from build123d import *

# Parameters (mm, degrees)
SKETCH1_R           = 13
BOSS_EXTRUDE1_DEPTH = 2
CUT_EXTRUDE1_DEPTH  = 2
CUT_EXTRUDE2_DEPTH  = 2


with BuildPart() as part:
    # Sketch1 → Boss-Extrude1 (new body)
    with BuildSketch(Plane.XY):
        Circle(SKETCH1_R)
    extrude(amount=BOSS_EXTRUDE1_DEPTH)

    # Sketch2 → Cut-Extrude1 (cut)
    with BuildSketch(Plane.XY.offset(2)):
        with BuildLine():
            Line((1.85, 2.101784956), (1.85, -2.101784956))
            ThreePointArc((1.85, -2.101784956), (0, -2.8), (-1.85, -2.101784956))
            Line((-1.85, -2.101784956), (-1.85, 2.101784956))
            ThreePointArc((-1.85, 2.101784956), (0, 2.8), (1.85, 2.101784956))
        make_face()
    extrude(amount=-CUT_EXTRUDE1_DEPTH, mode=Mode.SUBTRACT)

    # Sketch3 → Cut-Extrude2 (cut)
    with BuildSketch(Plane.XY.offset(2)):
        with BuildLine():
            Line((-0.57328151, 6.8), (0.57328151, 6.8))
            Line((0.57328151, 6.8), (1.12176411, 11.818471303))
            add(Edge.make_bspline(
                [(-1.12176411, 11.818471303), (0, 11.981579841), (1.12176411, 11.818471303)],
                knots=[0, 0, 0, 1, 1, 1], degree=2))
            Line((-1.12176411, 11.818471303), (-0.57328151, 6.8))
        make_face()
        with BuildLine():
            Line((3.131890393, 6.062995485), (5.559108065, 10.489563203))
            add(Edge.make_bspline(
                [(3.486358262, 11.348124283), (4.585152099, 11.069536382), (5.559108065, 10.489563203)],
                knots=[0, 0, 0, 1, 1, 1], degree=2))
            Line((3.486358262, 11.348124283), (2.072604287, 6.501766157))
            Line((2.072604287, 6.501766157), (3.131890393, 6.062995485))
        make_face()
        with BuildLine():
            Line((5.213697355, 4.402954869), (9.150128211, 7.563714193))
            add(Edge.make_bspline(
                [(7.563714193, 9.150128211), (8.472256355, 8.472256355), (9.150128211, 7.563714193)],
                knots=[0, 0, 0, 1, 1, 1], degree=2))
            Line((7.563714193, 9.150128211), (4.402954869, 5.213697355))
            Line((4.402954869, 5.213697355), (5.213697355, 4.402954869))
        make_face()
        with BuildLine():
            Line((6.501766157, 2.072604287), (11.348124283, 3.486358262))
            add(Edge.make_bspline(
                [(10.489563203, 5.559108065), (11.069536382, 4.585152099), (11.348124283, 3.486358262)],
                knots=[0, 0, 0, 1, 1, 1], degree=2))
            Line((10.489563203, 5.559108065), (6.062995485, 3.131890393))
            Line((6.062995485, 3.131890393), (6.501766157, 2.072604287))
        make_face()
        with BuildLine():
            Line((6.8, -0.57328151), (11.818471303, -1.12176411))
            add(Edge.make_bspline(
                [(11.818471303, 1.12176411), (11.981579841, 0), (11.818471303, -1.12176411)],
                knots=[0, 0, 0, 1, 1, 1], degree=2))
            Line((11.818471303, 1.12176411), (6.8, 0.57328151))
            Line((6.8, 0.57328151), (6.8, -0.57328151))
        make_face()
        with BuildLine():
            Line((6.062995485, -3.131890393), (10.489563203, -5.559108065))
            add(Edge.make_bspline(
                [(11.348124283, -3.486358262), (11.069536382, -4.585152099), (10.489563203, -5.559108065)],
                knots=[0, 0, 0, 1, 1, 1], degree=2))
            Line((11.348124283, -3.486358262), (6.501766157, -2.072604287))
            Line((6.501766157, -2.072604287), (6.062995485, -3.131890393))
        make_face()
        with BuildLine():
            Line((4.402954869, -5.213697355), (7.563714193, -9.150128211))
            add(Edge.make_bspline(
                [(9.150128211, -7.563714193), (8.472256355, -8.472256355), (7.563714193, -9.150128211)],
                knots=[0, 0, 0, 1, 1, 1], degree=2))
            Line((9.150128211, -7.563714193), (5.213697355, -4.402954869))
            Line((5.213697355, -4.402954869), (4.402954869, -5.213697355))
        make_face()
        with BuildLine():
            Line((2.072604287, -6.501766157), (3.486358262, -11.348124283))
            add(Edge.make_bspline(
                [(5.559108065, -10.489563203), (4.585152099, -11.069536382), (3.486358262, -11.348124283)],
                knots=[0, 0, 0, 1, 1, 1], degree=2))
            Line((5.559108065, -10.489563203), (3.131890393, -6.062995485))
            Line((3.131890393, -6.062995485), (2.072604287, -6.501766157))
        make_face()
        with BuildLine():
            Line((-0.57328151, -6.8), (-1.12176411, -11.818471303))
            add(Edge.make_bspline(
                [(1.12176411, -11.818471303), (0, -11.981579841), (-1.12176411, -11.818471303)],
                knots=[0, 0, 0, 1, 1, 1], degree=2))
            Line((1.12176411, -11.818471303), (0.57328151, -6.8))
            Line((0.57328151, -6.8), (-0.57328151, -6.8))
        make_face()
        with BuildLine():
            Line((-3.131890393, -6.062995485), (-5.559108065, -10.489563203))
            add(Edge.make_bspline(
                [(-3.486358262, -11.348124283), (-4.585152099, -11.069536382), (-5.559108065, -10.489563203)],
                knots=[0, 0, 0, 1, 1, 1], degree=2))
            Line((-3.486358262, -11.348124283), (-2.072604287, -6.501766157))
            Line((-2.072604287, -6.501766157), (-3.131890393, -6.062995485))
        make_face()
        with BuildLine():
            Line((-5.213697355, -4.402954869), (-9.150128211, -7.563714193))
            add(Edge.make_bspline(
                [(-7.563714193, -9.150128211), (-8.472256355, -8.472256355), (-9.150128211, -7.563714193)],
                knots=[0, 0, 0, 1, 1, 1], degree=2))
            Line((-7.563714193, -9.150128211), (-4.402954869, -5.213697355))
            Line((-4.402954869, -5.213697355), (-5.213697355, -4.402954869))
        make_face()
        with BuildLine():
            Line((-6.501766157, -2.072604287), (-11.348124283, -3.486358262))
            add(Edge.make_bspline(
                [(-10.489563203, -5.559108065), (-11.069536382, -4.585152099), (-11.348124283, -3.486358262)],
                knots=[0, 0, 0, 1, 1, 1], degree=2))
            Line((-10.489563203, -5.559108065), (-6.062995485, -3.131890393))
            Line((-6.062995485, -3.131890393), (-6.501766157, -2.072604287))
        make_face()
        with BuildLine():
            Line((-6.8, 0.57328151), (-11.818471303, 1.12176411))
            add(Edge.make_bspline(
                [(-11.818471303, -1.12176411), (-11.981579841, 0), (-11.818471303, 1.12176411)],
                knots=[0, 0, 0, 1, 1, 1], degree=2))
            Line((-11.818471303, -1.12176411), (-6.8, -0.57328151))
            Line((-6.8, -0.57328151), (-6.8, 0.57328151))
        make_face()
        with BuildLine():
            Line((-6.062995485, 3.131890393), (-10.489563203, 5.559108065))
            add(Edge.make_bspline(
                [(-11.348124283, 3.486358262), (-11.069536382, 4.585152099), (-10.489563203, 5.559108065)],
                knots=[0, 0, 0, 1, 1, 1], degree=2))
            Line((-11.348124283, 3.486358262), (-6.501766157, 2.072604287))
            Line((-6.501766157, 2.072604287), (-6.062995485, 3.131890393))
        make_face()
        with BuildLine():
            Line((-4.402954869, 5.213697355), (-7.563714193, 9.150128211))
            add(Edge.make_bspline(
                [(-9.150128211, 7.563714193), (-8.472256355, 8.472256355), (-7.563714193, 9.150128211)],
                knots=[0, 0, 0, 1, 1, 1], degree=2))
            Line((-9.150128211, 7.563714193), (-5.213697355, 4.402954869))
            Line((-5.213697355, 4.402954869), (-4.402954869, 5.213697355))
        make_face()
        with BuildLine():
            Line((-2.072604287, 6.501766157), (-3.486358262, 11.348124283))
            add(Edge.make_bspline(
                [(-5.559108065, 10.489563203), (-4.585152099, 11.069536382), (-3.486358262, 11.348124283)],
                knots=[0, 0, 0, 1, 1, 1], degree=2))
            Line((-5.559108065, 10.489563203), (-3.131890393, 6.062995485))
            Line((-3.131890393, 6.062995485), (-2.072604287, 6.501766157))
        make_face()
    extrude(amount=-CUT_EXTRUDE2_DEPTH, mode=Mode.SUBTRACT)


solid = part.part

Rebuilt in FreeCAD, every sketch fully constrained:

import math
import FreeCAD as App
import Part
import Sketcher

doc = App.newDocument("Part")
body = doc.addObject("PartDesign::Body", "Body")

# Sketch on XY plane
sketch1 = body.newObject("Sketcher::SketchObject", "Sketch")
sketch1.AttachmentSupport = (doc.getObject("XY_Plane"), [""])
sketch1.MapMode = "FlatFace"
sketch1.addGeometry(Part.Circle(App.Vector(0, 0, 0), App.Vector(0, 0, 1), 13), False)
sketch1.addConstraint([
    Sketcher.Constraint("Coincident", 0, 3, -1, 1),
    Sketcher.Constraint("Diameter", 0, 26.0),
])
pad1 = body.newObject("PartDesign::Pad", "Pad")
pad1.Profile = sketch1
pad1.Length = 2

# Sketch on XY plane
sketch2 = body.newObject("Sketcher::SketchObject", "Sketch001")
sketch2.AttachmentSupport = (doc.getObject("XY_Plane"), [""])
sketch2.MapMode = "FlatFace"
sketch2.AttachmentOffset = App.Placement(App.Vector(0, 0, 2), App.Rotation())
sketch2.addGeometry([
    Part.LineSegment(App.Vector(1.85, -2.101785, 0), App.Vector(1.85, 2.101785, 0)),
    Part.ArcOfCircle(Part.Circle(App.Vector(0, 0, 0), App.Vector(0, 0, 1), 2.8), math.radians(48.645629), math.radians(131.354371)),
    Part.LineSegment(App.Vector(-1.85, 2.101785, 0), App.Vector(-1.85, -2.101785, 0)),
    Part.ArcOfCircle(Part.Circle(App.Vector(0, 0, 0), App.Vector(0, 0, 1), 2.8), math.radians(-131.354371), math.radians(-48.645629)),
], False)
sketch2.addConstraint([
    Sketcher.Constraint("Coincident", 0, 2, 1, 1),
    Sketcher.Constraint("Coincident", 1, 2, 2, 1),
    Sketcher.Constraint("Coincident", 2, 2, 3, 1),
    Sketcher.Constraint("Coincident", 3, 2, 0, 1),
    Sketcher.Constraint("Vertical", 0),
    Sketcher.Constraint("Vertical", 2),
    Sketcher.Constraint("Coincident", 1, 3, -1, 1),
    Sketcher.Constraint("Coincident", 3, 3, -1, 1),
    Sketcher.Constraint("Equal", 1, 3),
    Sketcher.Constraint("Horizontal", 0, 2, 1, 2),
    Sketcher.Constraint("Radius", 1, 2.8),
    Sketcher.Constraint("DistanceX", 1, 2, 0, 2, 3.7),
])
pocket1 = body.newObject("PartDesign::Pocket", "Pocket")
pocket1.Profile = sketch2
pocket1.Length = 2

# Sketch on XY plane
sketch3 = body.newObject("Sketcher::SketchObject", "Sketch002")
sketch3.AttachmentSupport = (doc.getObject("XY_Plane"), [""])
sketch3.MapMode = "FlatFace"
sketch3.AttachmentOffset = App.Placement(App.Vector(0, 0, 2), App.Rotation())
sketch3.addGeometry([
    Part.LineSegment(App.Vector(-0.573282, 6.8, 0), App.Vector(0.573282, 6.8, 0)),  # 0
    Part.LineSegment(App.Vector(0.573282, 6.8, 0), App.Vector(1.121764, 11.818471, 0)),  # 1
    Part.BSplineCurve([App.Vector(-1.121764, 11.818471, 0), App.Vector(0, 11.98158, 0), App.Vector(1.121764, 11.818471, 0)], [3, 3], [0, 1], False, 2, [1, 1, 1], False),  # 2
    Part.LineSegment(App.Vector(-1.121764, 11.818471, 0), App.Vector(-0.573282, 6.8, 0)),  # 3
    Part.LineSegment(App.Vector(3.13189, 6.062995, 0), App.Vector(5.559108, 10.489563, 0)),  # 4
    Part.BSplineCurve([App.Vector(3.486358, 11.348124, 0), App.Vector(4.585152, 11.069536, 0), App.Vector(5.559108, 10.489563, 0)], [3, 3], [0, 1], False, 2, [1, 1, 1], False),  # 5
    Part.LineSegment(App.Vector(3.486358, 11.348124, 0), App.Vector(2.072604, 6.501766, 0)),  # 6
    Part.LineSegment(App.Vector(2.072604, 6.501766, 0), App.Vector(3.13189, 6.062995, 0)),  # 7
    Part.LineSegment(App.Vector(5.213697, 4.402955, 0), App.Vector(9.150128, 7.563714, 0)),  # 8
    Part.BSplineCurve([App.Vector(7.563714, 9.150128, 0), App.Vector(8.472256, 8.472256, 0), App.Vector(9.150128, 7.563714, 0)], [3, 3], [0, 1], False, 2, [1, 1, 1], False),  # 9
    Part.LineSegment(App.Vector(7.563714, 9.150128, 0), App.Vector(4.402955, 5.213697, 0)),  # 10
    Part.LineSegment(App.Vector(4.402955, 5.213697, 0), App.Vector(5.213697, 4.402955, 0)),  # 11
    Part.LineSegment(App.Vector(6.501766, 2.072604, 0), App.Vector(11.348124, 3.486358, 0)),  # 12
    Part.BSplineCurve([App.Vector(10.489563, 5.559108, 0), App.Vector(11.069536, 4.585152, 0), App.Vector(11.348124, 3.486358, 0)], [3, 3], [0, 1], False, 2, [1, 1, 1], False),  # 13
    Part.LineSegment(App.Vector(10.489563, 5.559108, 0), App.Vector(6.062995, 3.13189, 0)),  # 14
    Part.LineSegment(App.Vector(6.062995, 3.13189, 0), App.Vector(6.501766, 2.072604, 0)),  # 15
    Part.LineSegment(App.Vector(6.8, -0.573282, 0), App.Vector(11.818471, -1.121764, 0)),  # 16
    Part.BSplineCurve([App.Vector(11.818471, 1.121764, 0), App.Vector(11.98158, 0, 0), App.Vector(11.818471, -1.121764, 0)], [3, 3], [0, 1], False, 2, [1, 1, 1], False),  # 17
    Part.LineSegment(App.Vector(11.818471, 1.121764, 0), App.Vector(6.8, 0.573282, 0)),  # 18
    Part.LineSegment(App.Vector(6.8, 0.573282, 0), App.Vector(6.8, -0.573282, 0)),  # 19
    Part.LineSegment(App.Vector(6.062995, -3.13189, 0), App.Vector(10.489563, -5.559108, 0)),  # 20
    Part.BSplineCurve([App.Vector(11.348124, -3.486358, 0), App.Vector(11.069536, -4.585152, 0), App.Vector(10.489563, -5.559108, 0)], [3, 3], [0, 1], False, 2, [1, 1, 1], False),  # 21
    Part.LineSegment(App.Vector(11.348124, -3.486358, 0), App.Vector(6.501766, -2.072604, 0)),  # 22
    Part.LineSegment(App.Vector(6.501766, -2.072604, 0), App.Vector(6.062995, -3.13189, 0)),  # 23
    Part.LineSegment(App.Vector(4.402955, -5.213697, 0), App.Vector(7.563714, -9.150128, 0)),  # 24
    Part.BSplineCurve([App.Vector(9.150128, -7.563714, 0), App.Vector(8.472256, -8.472256, 0), App.Vector(7.563714, -9.150128, 0)], [3, 3], [0, 1], False, 2, [1, 1, 1], False),  # 25
    Part.LineSegment(App.Vector(9.150128, -7.563714, 0), App.Vector(5.213697, -4.402955, 0)),  # 26
    Part.LineSegment(App.Vector(5.213697, -4.402955, 0), App.Vector(4.402955, -5.213697, 0)),  # 27
    Part.LineSegment(App.Vector(2.072604, -6.501766, 0), App.Vector(3.486358, -11.348124, 0)),  # 28
    Part.BSplineCurve([App.Vector(5.559108, -10.489563, 0), App.Vector(4.585152, -11.069536, 0), App.Vector(3.486358, -11.348124, 0)], [3, 3], [0, 1], False, 2, [1, 1, 1], False),  # 29
    Part.LineSegment(App.Vector(5.559108, -10.489563, 0), App.Vector(3.13189, -6.062995, 0)),  # 30
    Part.LineSegment(App.Vector(3.13189, -6.062995, 0), App.Vector(2.072604, -6.501766, 0)),  # 31
    Part.LineSegment(App.Vector(-0.573282, -6.8, 0), App.Vector(-1.121764, -11.818471, 0)),  # 32
    Part.BSplineCurve([App.Vector(1.121764, -11.818471, 0), App.Vector(0, -11.98158, 0), App.Vector(-1.121764, -11.818471, 0)], [3, 3], [0, 1], False, 2, [1, 1, 1], False),  # 33
    Part.LineSegment(App.Vector(1.121764, -11.818471, 0), App.Vector(0.573282, -6.8, 0)),  # 34
    Part.LineSegment(App.Vector(0.573282, -6.8, 0), App.Vector(-0.573282, -6.8, 0)),  # 35
    Part.LineSegment(App.Vector(-3.13189, -6.062995, 0), App.Vector(-5.559108, -10.489563, 0)),  # 36
    Part.BSplineCurve([App.Vector(-3.486358, -11.348124, 0), App.Vector(-4.585152, -11.069536, 0), App.Vector(-5.559108, -10.489563, 0)], [3, 3], [0, 1], False, 2, [1, 1, 1], False),  # 37
    Part.LineSegment(App.Vector(-3.486358, -11.348124, 0), App.Vector(-2.072604, -6.501766, 0)),  # 38
    Part.LineSegment(App.Vector(-2.072604, -6.501766, 0), App.Vector(-3.13189, -6.062995, 0)),  # 39
    Part.LineSegment(App.Vector(-5.213697, -4.402955, 0), App.Vector(-9.150128, -7.563714, 0)),  # 40
    Part.BSplineCurve([App.Vector(-7.563714, -9.150128, 0), App.Vector(-8.472256, -8.472256, 0), App.Vector(-9.150128, -7.563714, 0)], [3, 3], [0, 1], False, 2, [1, 1, 1], False),  # 41
    Part.LineSegment(App.Vector(-7.563714, -9.150128, 0), App.Vector(-4.402955, -5.213697, 0)),  # 42
    Part.LineSegment(App.Vector(-4.402955, -5.213697, 0), App.Vector(-5.213697, -4.402955, 0)),  # 43
    Part.LineSegment(App.Vector(-6.501766, -2.072604, 0), App.Vector(-11.348124, -3.486358, 0)),  # 44
    Part.BSplineCurve([App.Vector(-10.489563, -5.559108, 0), App.Vector(-11.069536, -4.585152, 0), App.Vector(-11.348124, -3.486358, 0)], [3, 3], [0, 1], False, 2, [1, 1, 1], False),  # 45
    Part.LineSegment(App.Vector(-10.489563, -5.559108, 0), App.Vector(-6.062995, -3.13189, 0)),  # 46
    Part.LineSegment(App.Vector(-6.062995, -3.13189, 0), App.Vector(-6.501766, -2.072604, 0)),  # 47
    Part.LineSegment(App.Vector(-6.8, 0.573282, 0), App.Vector(-11.818471, 1.121764, 0)),  # 48
    Part.BSplineCurve([App.Vector(-11.818471, -1.121764, 0), App.Vector(-11.98158, 0, 0), App.Vector(-11.818471, 1.121764, 0)], [3, 3], [0, 1], False, 2, [1, 1, 1], False),  # 49
    Part.LineSegment(App.Vector(-11.818471, -1.121764, 0), App.Vector(-6.8, -0.573282, 0)),  # 50
    Part.LineSegment(App.Vector(-6.8, -0.573282, 0), App.Vector(-6.8, 0.573282, 0)),  # 51
    Part.LineSegment(App.Vector(-6.062995, 3.13189, 0), App.Vector(-10.489563, 5.559108, 0)),  # 52
    Part.BSplineCurve([App.Vector(-11.348124, 3.486358, 0), App.Vector(-11.069536, 4.585152, 0), App.Vector(-10.489563, 5.559108, 0)], [3, 3], [0, 1], False, 2, [1, 1, 1], False),  # 53
    Part.LineSegment(App.Vector(-11.348124, 3.486358, 0), App.Vector(-6.501766, 2.072604, 0)),  # 54
    Part.LineSegment(App.Vector(-6.501766, 2.072604, 0), App.Vector(-6.062995, 3.13189, 0)),  # 55
    Part.LineSegment(App.Vector(-4.402955, 5.213697, 0), App.Vector(-7.563714, 9.150128, 0)),  # 56
    Part.BSplineCurve([App.Vector(-9.150128, 7.563714, 0), App.Vector(-8.472256, 8.472256, 0), App.Vector(-7.563714, 9.150128, 0)], [3, 3], [0, 1], False, 2, [1, 1, 1], False),  # 57
    Part.LineSegment(App.Vector(-9.150128, 7.563714, 0), App.Vector(-5.213697, 4.402955, 0)),  # 58
    Part.LineSegment(App.Vector(-5.213697, 4.402955, 0), App.Vector(-4.402955, 5.213697, 0)),  # 59
    Part.LineSegment(App.Vector(-2.072604, 6.501766, 0), App.Vector(-3.486358, 11.348124, 0)),  # 60
    Part.BSplineCurve([App.Vector(-5.559108, 10.489563, 0), App.Vector(-4.585152, 11.069536, 0), App.Vector(-3.486358, 11.348124, 0)], [3, 3], [0, 1], False, 2, [1, 1, 1], False),  # 61
    Part.LineSegment(App.Vector(-5.559108, 10.489563, 0), App.Vector(-3.13189, 6.062995, 0)),  # 62
    Part.LineSegment(App.Vector(-3.13189, 6.062995, 0), App.Vector(-2.072604, 6.501766, 0)),  # 63
], False)
sketch3.addConstraint([
    Sketcher.Constraint("Block", 2),
    Sketcher.Constraint("Block", 5),
    Sketcher.Constraint("Block", 9),
    Sketcher.Constraint("Block", 13),
    Sketcher.Constraint("Block", 17),
    Sketcher.Constraint("Block", 21),
    Sketcher.Constraint("Block", 25),
    Sketcher.Constraint("Block", 29),
    Sketcher.Constraint("Block", 33),
    Sketcher.Constraint("Block", 37),
    Sketcher.Constraint("Block", 41),
    Sketcher.Constraint("Block", 45),
    Sketcher.Constraint("Block", 49),
    Sketcher.Constraint("Block", 53),
    Sketcher.Constraint("Block", 57),
    Sketcher.Constraint("Block", 61),
    Sketcher.Constraint("Coincident", 0, 2, 1, 1),
    Sketcher.Constraint("Coincident", 1, 2, 2, 2),
    Sketcher.Constraint("Coincident", 2, 1, 3, 1),
    Sketcher.Constraint("Coincident", 3, 2, 0, 1),
    Sketcher.Constraint("Coincident", 4, 2, 5, 2),
    Sketcher.Constraint("Coincident", 5, 1, 6, 1),
    Sketcher.Constraint("Coincident", 6, 2, 7, 1),
    Sketcher.Constraint("Coincident", 7, 2, 4, 1),
    Sketcher.Constraint("Coincident", 8, 2, 9, 2),
    Sketcher.Constraint("Coincident", 9, 1, 10, 1),
    Sketcher.Constraint("Coincident", 10, 2, 11, 1),
    Sketcher.Constraint("Coincident", 11, 2, 8, 1),
    Sketcher.Constraint("Coincident", 12, 2, 13, 2),
    Sketcher.Constraint("Coincident", 13, 1, 14, 1),
    Sketcher.Constraint("Coincident", 14, 2, 15, 1),
    Sketcher.Constraint("Coincident", 15, 2, 12, 1),
    Sketcher.Constraint("Coincident", 16, 2, 17, 2),
    Sketcher.Constraint("Coincident", 17, 1, 18, 1),
    Sketcher.Constraint("Coincident", 18, 2, 19, 1),
    Sketcher.Constraint("Coincident", 19, 2, 16, 1),
    Sketcher.Constraint("Coincident", 20, 2, 21, 2),
    Sketcher.Constraint("Coincident", 21, 1, 22, 1),
    Sketcher.Constraint("Coincident", 22, 2, 23, 1),
    Sketcher.Constraint("Coincident", 23, 2, 20, 1),
    Sketcher.Constraint("Coincident", 24, 2, 25, 2),
    Sketcher.Constraint("Coincident", 25, 1, 26, 1),
    Sketcher.Constraint("Coincident", 26, 2, 27, 1),
    Sketcher.Constraint("Coincident", 27, 2, 24, 1),
    Sketcher.Constraint("Coincident", 28, 2, 29, 2),
    Sketcher.Constraint("Coincident", 29, 1, 30, 1),
    Sketcher.Constraint("Coincident", 30, 2, 31, 1),
    Sketcher.Constraint("Coincident", 31, 2, 28, 1),
    Sketcher.Constraint("Coincident", 32, 2, 33, 2),
    Sketcher.Constraint("Coincident", 33, 1, 34, 1),
    Sketcher.Constraint("Coincident", 34, 2, 35, 1),
    Sketcher.Constraint("Coincident", 35, 2, 32, 1),
    Sketcher.Constraint("Coincident", 36, 2, 37, 2),
    Sketcher.Constraint("Coincident", 37, 1, 38, 1),
    Sketcher.Constraint("Coincident", 38, 2, 39, 1),
    Sketcher.Constraint("Coincident", 39, 2, 36, 1),
    Sketcher.Constraint("Coincident", 40, 2, 41, 2),
    Sketcher.Constraint("Coincident", 41, 1, 42, 1),
    Sketcher.Constraint("Coincident", 42, 2, 43, 1),
    Sketcher.Constraint("Coincident", 43, 2, 40, 1),
    Sketcher.Constraint("Coincident", 44, 2, 45, 2),
    Sketcher.Constraint("Coincident", 45, 1, 46, 1),
    Sketcher.Constraint("Coincident", 46, 2, 47, 1),
    Sketcher.Constraint("Coincident", 47, 2, 44, 1),
    Sketcher.Constraint("Coincident", 48, 2, 49, 2),
    Sketcher.Constraint("Coincident", 49, 1, 50, 1),
    Sketcher.Constraint("Coincident", 50, 2, 51, 1),
    Sketcher.Constraint("Coincident", 51, 2, 48, 1),
    Sketcher.Constraint("Coincident", 52, 2, 53, 2),
    Sketcher.Constraint("Coincident", 53, 1, 54, 1),
    Sketcher.Constraint("Coincident", 54, 2, 55, 1),
    Sketcher.Constraint("Coincident", 55, 2, 52, 1),
    Sketcher.Constraint("Coincident", 56, 2, 57, 2),
    Sketcher.Constraint("Coincident", 57, 1, 58, 1),
    Sketcher.Constraint("Coincident", 58, 2, 59, 1),
    Sketcher.Constraint("Coincident", 59, 2, 56, 1),
    Sketcher.Constraint("Coincident", 60, 2, 61, 2),
    Sketcher.Constraint("Coincident", 61, 1, 62, 1),
    Sketcher.Constraint("Coincident", 62, 2, 63, 1),
    Sketcher.Constraint("Coincident", 63, 2, 60, 1),
    Sketcher.Constraint("Horizontal", 0),
    Sketcher.Constraint("Vertical", 19),
    Sketcher.Constraint("Horizontal", 35),
    Sketcher.Constraint("Vertical", 51),
    Sketcher.Constraint("DistanceY", -1, 1, 0, 2, 6.8),
    Sketcher.Constraint("DistanceX", -1, 1, 18, 2, 6.8),
    Sketcher.Constraint("DistanceY", 34, 2, -1, 1, 6.8),
    Sketcher.Constraint("DistanceX", 50, 2, -1, 1, 6.8),
    Sketcher.Constraint("DistanceY", 10, 2, 7, 2, 0.849298),
    Sketcher.Constraint("DistanceX", 11, 2, 14, 2, 0.849298),
    Sketcher.Constraint("DistanceX", 26, 2, 23, 2, 0.849298),
    Sketcher.Constraint("DistanceY", 30, 2, 27, 2, 0.849298),
    Sketcher.Constraint("DistanceY", 39, 2, 42, 2, 0.849298),
    Sketcher.Constraint("DistanceX", 46, 2, 43, 2, 0.849298),
    Sketcher.Constraint("DistanceX", 55, 2, 58, 2, 0.849298),
    Sketcher.Constraint("DistanceY", 59, 2, 62, 2, 0.849298),
    Sketcher.Constraint("DistanceX", 0, 1, 0, 2, 1.146563),
    Sketcher.Constraint("DistanceX", 35, 2, 35, 1, 1.146563),
    Sketcher.Constraint("DistanceY", 19, 2, 19, 1, 1.146563),
    Sketcher.Constraint("DistanceY", 51, 1, 51, 2, 1.146563),
    Sketcher.Constraint("DistanceX", -1, 1, 0, 2, 0.573282),
    Sketcher.Constraint("DistanceX", -1, 1, 7, 2, 3.13189),
    Sketcher.Constraint("DistanceY", -1, 1, 14, 2, 3.13189),
    Sketcher.Constraint("DistanceY", -1, 1, 18, 2, 0.573282),
    Sketcher.Constraint("DistanceY", 23, 2, -1, 1, 3.13189),
    Sketcher.Constraint("DistanceX", -1, 1, 30, 2, 3.13189),
    Sketcher.Constraint("DistanceX", -1, 1, 34, 2, 0.573282),
    Sketcher.Constraint("DistanceX", 39, 2, -1, 1, 3.13189),
    Sketcher.Constraint("DistanceY", 46, 2, -1, 1, 3.13189),
    Sketcher.Constraint("DistanceY", 50, 2, -1, 1, 0.573282),
    Sketcher.Constraint("DistanceY", -1, 1, 55, 2, 3.13189),
    Sketcher.Constraint("DistanceX", 62, 2, -1, 1, 3.13189),
    Sketcher.Constraint("DistanceX", 1, 2, 6, 2, 0.95084),
    Sketcher.Constraint("DistanceY", 7, 2, 6, 2, 0.438771),
    Sketcher.Constraint("DistanceY", 7, 2, 8, 2, 1.500719),
    Sketcher.Constraint("DistanceX", 6, 2, 10, 2, 2.330351),
    Sketcher.Constraint("DistanceY", 11, 2, 7, 2, 1.660041),
    Sketcher.Constraint("DistanceX", 11, 2, 8, 2, 3.936431),
    Sketcher.Constraint("DistanceX", 14, 2, 15, 2, 0.438771),
    Sketcher.Constraint("DistanceY", 15, 2, 11, 2, 2.330351),
    Sketcher.Constraint("DistanceY", 22, 2, 15, 2, 4.145209),
    Sketcher.Constraint("DistanceX", 14, 2, 22, 2, 0.438771),
    Sketcher.Constraint("DistanceX", 23, 2, 22, 2, 0.438771),
    Sketcher.Constraint("DistanceY", 26, 2, 22, 2, 2.330351),
    Sketcher.Constraint("DistanceX", 27, 2, 23, 2, 1.660041),
    Sketcher.Constraint("DistanceY", 24, 2, 27, 2, 3.936431),
    Sketcher.Constraint("DistanceY", 31, 2, 30, 2, 0.438771),
    Sketcher.Constraint("DistanceX", 31, 2, 27, 2, 2.330351),
    Sketcher.Constraint("DistanceX", 38, 2, 31, 2, 4.145209),
    Sketcher.Constraint("DistanceY", 38, 2, 30, 2, 0.438771),
    Sketcher.Constraint("DistanceY", 38, 2, 39, 2, 0.438771),
    Sketcher.Constraint("DistanceX", 42, 2, 38, 2, 2.330351),
    Sketcher.Constraint("DistanceY", 39, 2, 43, 2, 1.660041),
    Sketcher.Constraint("DistanceX", 40, 2, 43, 2, 3.936431),
    Sketcher.Constraint("DistanceX", 47, 2, 46, 2, 0.438771),
    Sketcher.Constraint("DistanceY", 43, 2, 47, 2, 2.330351),
    Sketcher.Constraint("DistanceY", 47, 2, 54, 2, 4.145209),
    Sketcher.Constraint("DistanceX", 54, 2, 46, 2, 0.438771),
    Sketcher.Constraint("DistanceX", 54, 2, 55, 2, 0.438771),
    Sketcher.Constraint("DistanceY", 54, 2, 58, 2, 2.330351),
    Sketcher.Constraint("DistanceX", 55, 2, 59, 2, 1.660041),
    Sketcher.Constraint("DistanceY", 59, 2, 56, 2, 3.936431),
    Sketcher.Constraint("DistanceY", 62, 2, 63, 2, 0.438771),
    Sketcher.Constraint("DistanceX", 59, 2, 63, 2, 2.330351),
])
pocket2 = body.newObject("PartDesign::Pocket", "Pocket001")
pocket2.Profile = sketch3
pocket2.Length = 2

doc.recompute()
